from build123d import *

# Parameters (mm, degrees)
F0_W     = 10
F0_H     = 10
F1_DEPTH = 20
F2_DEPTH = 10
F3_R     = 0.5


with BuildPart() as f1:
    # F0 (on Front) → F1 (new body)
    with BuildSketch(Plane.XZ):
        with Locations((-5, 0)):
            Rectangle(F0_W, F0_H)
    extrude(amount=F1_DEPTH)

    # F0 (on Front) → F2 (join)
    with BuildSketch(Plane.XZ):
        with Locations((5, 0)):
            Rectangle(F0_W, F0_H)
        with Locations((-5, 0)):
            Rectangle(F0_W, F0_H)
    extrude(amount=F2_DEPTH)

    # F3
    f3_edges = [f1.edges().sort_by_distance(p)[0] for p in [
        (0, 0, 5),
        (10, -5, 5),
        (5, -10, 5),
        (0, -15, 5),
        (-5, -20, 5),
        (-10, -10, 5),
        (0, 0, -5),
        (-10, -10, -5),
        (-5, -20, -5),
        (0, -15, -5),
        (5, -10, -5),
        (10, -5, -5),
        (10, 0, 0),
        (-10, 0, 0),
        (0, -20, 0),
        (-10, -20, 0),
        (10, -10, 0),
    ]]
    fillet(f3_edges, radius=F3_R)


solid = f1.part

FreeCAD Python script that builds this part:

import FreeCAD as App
import Part
import Sketcher
from FreeCAD import Vector
Q = App.Units.Quantity


def edges_at(feature, points):
    """Names of the edges that pass closest to the given points."""
    edges = feature.Shape.Edges
    near = lambda p: min(range(len(edges)), key=lambda i: edges[i].distToShape(Part.Vertex(*p))[0])
    return sorted({f"Edge{near(p) + 1}" for p in points})


def add_polygon(sketch, points):
    """Adds a closed chain of lines whose ends are joined by coincident constraints."""
    first, n = sketch.GeometryCount, len(points)
    for a, b in zip(points, points[1:] + points[:1]):
        sketch.addGeometry(Part.LineSegment(App.Vector(*a, 0), App.Vector(*b, 0)), False)
    for i in range(n):
        sketch.addConstraint(Sketcher.Constraint("Coincident", first + i, 2, first + (i + 1) % n, 1))

doc = App.newDocument("Part")
body = doc.addObject("PartDesign::Body", "Body")

# Sketch on XZ plane
sketch1 = doc.addObject("Sketcher::SketchObject", "Sketch")
body.addObject(sketch1)
sketch1.AttachmentSupport = (doc.XZ_Plane, [""])
sketch1.MapMode = "FlatFace"
add_polygon(sketch1, [(-10, 5), (-10, -5), (0, -5), (0, 5)])  # lines 0-3
sketch1.addConstraint(Sketcher.Constraint("Vertical", 0))
sketch1.addConstraint(Sketcher.Constraint("Horizontal", 1))
sketch1.addConstraint(Sketcher.Constraint("Vertical", 2))
sketch1.addConstraint(Sketcher.Constraint("Horizontal", 3))
sketch1.addConstraint(Sketcher.Constraint("Symmetric", 1, 2, 2, 2, -1, 1))
sketch1.addConstraint(Sketcher.Constraint("Equal", 3, 0))
sketch1.addConstraint(Sketcher.Constraint("DistanceX", 1, 1, 1, 2, Q("10 mm")))
pad1 = doc.addObject("PartDesign::Pad", "Pad")
body.addObject(pad1)
pad1.Profile = sketch1
pad1.Length = 20

# Sketch on XZ plane
sketch2 = doc.addObject("Sketcher::SketchObject", "Sketch001")
body.addObject(sketch2)
sketch2.AttachmentSupport = (doc.XZ_Plane, [""])
sketch2.MapMode = "FlatFace"
add_polygon(sketch2, [(10, -5), (10, 5), (-10, 5), (-10, -5)])  # lines 0-3
sketch2.addConstraint(Sketcher.Constraint("Vertical", 0))
sketch2.addConstraint(Sketcher.Constraint("Horizontal", 1))
sketch2.addConstraint(Sketcher.Constraint("Vertical", 2))
sketch2.addConstraint(Sketcher.Constraint("Horizontal", 3))
sketch2.addConstraint(Sketcher.Constraint("Symmetric", 0, 2, 2, 2, -1, 1))
sketch2.addConstraint(Sketcher.Constraint("DistanceX", 1, 2, 1, 1, Q("20 mm")))
sketch2.addConstraint(Sketcher.Constraint("DistanceY", 0, 1, 0, 2, Q("10 mm")))
pad2 = doc.addObject("PartDesign::Pad", "Pad001")
body.addObject(pad2)
pad2.Profile = sketch2
pad2.Length = 10
doc.recompute()

fillet = doc.addObject("PartDesign::Fillet", "Fillet")
body.addObject(fillet)
fillet.Base = (pad2, edges_at(pad2, [
    (0, 0, 5),
    (10, -5, 5),
    (5, -10, 5),
    (0, -15, 5),
    (-5, -20, 5),
    (-10, -10, 5),
    (0, 0, -5),
    (-10, -10, -5),
    (-5, -20, -5),
    (0, -15, -5),
    (5, -10, -5),
    (10, -5, -5),
    (10, 0, 0),
    (-10, 0, 0),
    (0, -20, 0),
    (-10, -20, 0),
    (10, -10, 0),
]))
fillet.Radius = 0.5

doc.recompute()
